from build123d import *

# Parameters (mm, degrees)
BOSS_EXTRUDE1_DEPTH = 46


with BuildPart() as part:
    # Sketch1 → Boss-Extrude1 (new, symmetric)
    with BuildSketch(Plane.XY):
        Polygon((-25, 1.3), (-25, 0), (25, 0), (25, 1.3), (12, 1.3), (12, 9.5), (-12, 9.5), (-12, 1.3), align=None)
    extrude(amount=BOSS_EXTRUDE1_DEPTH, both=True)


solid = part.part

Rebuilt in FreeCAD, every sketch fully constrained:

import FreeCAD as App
import Part
import Sketcher
from FreeCAD import Vector

doc = App.newDocument("Part")
params = doc.addObject("Spreadsheet::Sheet", "Params")
for row, (alias, value) in enumerate([
    ("sketch1_width", "50 mm"),
    ("sketch1_width2", "13 mm"),
    ("sketch1_height", "1.3 mm"),
    ("sketch1_height2", "8.2 mm"),
    ("pad1_length", "92 mm"),
], start=1):
    params.set(f"A{row}", alias)
    params.set(f"B{row}", "=" + value)
    params.setAlias(f"B{row}", alias)

body = doc.addObject("PartDesign::Body", "Body")

sketch1 = doc.addObject("Sketcher::SketchObject", "Sketch")
body.addObject(sketch1)
sketch1.AttachmentSupport = (doc.XY_Plane, [""])
sketch1.MapMode = "FlatFace"
sketch1.addGeometry([
    Part.LineSegment(Vector(-25, 1.3, 0), Vector(-25, 0, 0)),
    Part.LineSegment(Vector(-25, 0, 0), Vector(25, 0, 0)),
    Part.LineSegment(Vector(25, 0, 0), Vector(25, 1.3, 0)),
    Part.LineSegment(Vector(25, 1.3, 0), Vector(12, 1.3, 0)),
    Part.LineSegment(Vector(12, 1.3, 0), Vector(12, 9.5, 0)),
    Part.LineSegment(Vector(12, 9.5, 0), Vector(-12, 9.5, 0)),
    Part.LineSegment(Vector(-12, 9.5, 0), Vector(-12, 1.3, 0)),
    Part.LineSegment(Vector(-12, 1.3, 0), Vector(-25, 1.3, 0)),
], False)
sketch1.addConstraint([
    Sketcher.Constraint("Coincident", 0, 2, 1, 1),
    Sketcher.Constraint("Coincident", 1, 2, 2, 1),
    Sketcher.Constraint("Coincident", 2, 2, 3, 1),
    Sketcher.Constraint("Coincident", 3, 2, 4, 1),
    Sketcher.Constraint("Coincident", 4, 2, 5, 1),
    Sketcher.Constraint("Coincident", 5, 2, 6, 1),
    Sketcher.Constraint("Coincident", 6, 2, 7, 1),
    Sketcher.Constraint("Coincident", 7, 2, 0, 1),
    Sketcher.Constraint("Vertical", 0),
    Sketcher.Constraint("Horizontal", 1),
    Sketcher.Constraint("Vertical", 2),
    Sketcher.Constraint("Horizontal", 3),
    Sketcher.Constraint("Vertical", 4),
    Sketcher.Constraint("Horizontal", 5),
    Sketcher.Constraint("Vertical", 6),
    Sketcher.Constraint("Horizontal", 7),
    Sketcher.Constraint("Symmetric", 0, 2, 1, 2, -1, 1),
    Sketcher.Constraint("Symmetric", 3, 2, 6, 2, -2),
    Sketcher.Constraint("DistanceX", 1, 1, 1, 2, 50.0),
    Sketcher.Constraint("DistanceX", 3, 2, 3, 1, 13.0),
    Sketcher.Constraint("DistanceY", 0, 2, 0, 1, 1.3),
    Sketcher.Constraint("DistanceY", 4, 1, 4, 2, 8.2),
])
sketch1.setExpression("Constraints[18]", "Params.sketch1_width")
sketch1.setExpression("Constraints[19]", "Params.sketch1_width2")
sketch1.setExpression("Constraints[20]", "Params.sketch1_height")
sketch1.setExpression("Constraints[21]", "Params.sketch1_height2")
pad1 = doc.addObject("PartDesign::Pad", "Pad")
body.addObject(pad1)
pad1.Profile = sketch1
pad1.setExpression("Length", "Params.pad1_length")
pad1.Midplane = True

doc.recompute()
